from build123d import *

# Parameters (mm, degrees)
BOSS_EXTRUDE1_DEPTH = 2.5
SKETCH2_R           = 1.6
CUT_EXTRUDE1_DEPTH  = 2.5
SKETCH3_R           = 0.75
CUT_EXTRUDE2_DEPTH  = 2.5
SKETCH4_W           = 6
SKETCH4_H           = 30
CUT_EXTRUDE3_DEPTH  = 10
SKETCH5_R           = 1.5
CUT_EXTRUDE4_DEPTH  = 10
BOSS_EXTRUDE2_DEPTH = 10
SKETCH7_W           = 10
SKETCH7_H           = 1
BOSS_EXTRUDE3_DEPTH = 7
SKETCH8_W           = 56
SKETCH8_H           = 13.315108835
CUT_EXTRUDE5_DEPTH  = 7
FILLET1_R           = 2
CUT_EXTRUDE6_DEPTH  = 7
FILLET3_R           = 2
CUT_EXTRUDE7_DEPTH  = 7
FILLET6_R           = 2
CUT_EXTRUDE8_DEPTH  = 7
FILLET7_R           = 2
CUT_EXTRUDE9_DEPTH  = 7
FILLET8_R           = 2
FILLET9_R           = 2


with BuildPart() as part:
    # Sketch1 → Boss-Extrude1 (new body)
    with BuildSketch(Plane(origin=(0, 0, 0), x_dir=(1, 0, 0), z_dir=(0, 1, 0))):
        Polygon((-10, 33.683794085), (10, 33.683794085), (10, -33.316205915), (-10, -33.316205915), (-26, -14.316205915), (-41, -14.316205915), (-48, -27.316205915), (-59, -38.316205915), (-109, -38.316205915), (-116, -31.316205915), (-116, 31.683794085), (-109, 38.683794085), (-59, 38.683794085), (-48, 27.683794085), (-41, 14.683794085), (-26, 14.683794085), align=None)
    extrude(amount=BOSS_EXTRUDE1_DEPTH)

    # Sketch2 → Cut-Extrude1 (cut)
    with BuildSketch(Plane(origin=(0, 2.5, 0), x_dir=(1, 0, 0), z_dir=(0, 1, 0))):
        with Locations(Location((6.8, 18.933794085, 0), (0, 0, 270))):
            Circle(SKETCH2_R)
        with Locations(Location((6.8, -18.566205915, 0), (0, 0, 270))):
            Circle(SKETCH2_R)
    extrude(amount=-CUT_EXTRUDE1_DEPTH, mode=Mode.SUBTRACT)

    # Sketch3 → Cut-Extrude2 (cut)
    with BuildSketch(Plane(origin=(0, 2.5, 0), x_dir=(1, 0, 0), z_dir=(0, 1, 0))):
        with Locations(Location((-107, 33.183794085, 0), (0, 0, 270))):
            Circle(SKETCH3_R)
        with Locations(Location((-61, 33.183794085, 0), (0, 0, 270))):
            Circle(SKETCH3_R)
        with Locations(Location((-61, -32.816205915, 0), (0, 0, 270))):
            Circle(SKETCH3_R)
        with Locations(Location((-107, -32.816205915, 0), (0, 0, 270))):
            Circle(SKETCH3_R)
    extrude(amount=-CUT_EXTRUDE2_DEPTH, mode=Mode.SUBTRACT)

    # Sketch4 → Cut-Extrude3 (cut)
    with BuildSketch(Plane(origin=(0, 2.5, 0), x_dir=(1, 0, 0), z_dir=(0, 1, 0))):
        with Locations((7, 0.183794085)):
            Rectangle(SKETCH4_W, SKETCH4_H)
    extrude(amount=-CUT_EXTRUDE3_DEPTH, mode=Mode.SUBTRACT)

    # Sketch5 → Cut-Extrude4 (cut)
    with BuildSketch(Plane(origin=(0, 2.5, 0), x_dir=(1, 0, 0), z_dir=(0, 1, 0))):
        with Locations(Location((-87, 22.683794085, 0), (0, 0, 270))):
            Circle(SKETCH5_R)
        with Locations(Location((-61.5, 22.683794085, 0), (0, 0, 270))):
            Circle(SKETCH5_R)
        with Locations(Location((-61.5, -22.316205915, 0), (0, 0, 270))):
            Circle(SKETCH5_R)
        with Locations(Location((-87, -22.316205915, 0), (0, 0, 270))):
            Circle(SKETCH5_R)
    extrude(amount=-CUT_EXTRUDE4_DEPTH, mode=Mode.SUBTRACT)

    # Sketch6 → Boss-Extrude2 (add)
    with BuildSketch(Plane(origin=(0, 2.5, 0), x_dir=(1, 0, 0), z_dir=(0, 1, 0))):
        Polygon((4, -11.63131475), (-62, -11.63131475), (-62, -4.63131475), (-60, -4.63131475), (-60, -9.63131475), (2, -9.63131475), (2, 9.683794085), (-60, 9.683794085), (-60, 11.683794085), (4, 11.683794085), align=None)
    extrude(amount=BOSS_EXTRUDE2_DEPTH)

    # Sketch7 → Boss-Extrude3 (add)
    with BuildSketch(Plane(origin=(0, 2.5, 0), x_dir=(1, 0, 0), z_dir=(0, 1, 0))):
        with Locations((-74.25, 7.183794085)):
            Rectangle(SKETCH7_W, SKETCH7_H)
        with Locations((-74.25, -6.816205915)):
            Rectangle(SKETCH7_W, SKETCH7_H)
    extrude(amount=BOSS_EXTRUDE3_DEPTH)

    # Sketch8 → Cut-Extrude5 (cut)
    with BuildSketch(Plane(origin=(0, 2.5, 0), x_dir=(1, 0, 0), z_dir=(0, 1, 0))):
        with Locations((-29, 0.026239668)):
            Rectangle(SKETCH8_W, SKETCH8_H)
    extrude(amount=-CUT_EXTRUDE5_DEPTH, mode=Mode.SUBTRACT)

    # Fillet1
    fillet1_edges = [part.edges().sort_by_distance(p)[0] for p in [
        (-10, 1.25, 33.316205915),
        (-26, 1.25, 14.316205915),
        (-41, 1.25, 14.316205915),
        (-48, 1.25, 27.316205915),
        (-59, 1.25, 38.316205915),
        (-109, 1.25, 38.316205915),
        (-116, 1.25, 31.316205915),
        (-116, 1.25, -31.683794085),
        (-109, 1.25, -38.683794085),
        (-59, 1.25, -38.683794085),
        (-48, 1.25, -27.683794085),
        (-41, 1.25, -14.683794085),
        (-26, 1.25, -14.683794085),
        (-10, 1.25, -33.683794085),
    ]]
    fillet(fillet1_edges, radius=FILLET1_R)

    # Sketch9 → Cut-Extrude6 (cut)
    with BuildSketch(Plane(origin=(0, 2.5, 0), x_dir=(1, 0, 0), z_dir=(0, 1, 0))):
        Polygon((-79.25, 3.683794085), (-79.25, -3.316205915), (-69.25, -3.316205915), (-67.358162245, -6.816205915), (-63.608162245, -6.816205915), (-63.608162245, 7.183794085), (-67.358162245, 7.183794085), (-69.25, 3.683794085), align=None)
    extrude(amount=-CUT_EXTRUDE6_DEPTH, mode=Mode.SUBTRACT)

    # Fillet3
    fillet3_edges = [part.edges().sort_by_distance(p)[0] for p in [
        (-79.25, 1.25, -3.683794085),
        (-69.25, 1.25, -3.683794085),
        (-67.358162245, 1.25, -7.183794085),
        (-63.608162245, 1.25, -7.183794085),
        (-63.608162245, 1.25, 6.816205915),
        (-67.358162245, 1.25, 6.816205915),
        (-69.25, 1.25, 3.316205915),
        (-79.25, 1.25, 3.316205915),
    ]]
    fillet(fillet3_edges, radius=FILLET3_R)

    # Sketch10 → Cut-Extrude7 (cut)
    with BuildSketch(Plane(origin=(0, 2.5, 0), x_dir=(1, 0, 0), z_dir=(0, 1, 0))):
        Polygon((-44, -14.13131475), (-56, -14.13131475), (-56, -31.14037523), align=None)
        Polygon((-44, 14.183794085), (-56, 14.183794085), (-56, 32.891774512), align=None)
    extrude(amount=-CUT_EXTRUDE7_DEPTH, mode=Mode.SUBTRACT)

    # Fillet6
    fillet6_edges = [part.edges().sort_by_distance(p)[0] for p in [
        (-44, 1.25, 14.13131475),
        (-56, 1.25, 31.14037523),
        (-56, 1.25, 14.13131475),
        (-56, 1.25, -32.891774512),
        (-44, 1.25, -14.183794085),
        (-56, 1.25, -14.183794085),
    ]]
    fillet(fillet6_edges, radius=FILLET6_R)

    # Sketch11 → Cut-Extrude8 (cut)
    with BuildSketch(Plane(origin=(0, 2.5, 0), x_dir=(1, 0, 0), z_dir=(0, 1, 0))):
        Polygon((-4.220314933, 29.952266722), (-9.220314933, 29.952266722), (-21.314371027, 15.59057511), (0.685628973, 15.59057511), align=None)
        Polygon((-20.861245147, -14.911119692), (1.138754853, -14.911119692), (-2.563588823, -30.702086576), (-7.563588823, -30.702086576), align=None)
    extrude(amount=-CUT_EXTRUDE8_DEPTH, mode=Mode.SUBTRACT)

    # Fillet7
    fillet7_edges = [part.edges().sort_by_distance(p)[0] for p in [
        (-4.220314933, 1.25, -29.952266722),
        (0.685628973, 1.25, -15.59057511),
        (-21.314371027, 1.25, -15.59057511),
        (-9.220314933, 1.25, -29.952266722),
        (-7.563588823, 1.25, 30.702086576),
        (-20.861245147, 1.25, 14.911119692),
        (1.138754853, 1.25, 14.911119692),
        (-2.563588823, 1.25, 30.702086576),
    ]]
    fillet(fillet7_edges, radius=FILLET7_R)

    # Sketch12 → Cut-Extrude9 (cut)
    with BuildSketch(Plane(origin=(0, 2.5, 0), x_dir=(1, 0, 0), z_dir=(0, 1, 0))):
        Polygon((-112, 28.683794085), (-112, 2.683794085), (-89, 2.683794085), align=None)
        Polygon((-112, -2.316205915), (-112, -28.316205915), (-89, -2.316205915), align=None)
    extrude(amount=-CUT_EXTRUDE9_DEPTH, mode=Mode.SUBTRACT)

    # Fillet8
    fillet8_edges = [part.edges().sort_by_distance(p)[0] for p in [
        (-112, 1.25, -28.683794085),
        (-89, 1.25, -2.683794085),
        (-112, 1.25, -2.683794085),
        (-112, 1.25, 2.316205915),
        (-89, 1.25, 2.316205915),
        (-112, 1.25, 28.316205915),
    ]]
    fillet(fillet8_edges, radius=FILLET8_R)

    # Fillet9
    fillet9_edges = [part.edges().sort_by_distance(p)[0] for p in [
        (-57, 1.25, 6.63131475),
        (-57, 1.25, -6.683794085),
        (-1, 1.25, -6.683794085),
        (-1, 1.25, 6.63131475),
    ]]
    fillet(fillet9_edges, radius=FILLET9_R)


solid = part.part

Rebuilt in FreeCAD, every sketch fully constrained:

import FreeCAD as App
import Part
import Sketcher

V = App.Vector
Q = App.Units.Quantity


def edges_at(feature, points):
    """Names of the edges that pass closest to the given points."""
    edges = feature.Shape.Edges
    near = lambda p: min(range(len(edges)), key=lambda i: edges[i].distToShape(Part.Vertex(*p))[0])
    return sorted({f"Edge{near(p) + 1}" for p in points})


def add_polygon(sketch, points):
    """Adds a closed chain of lines whose ends are joined by coincident constraints."""
    first, n = sketch.GeometryCount, len(points)
    for a, b in zip(points, points[1:] + points[:1]):
        sketch.addGeometry(Part.LineSegment(App.Vector(*a, 0), App.Vector(*b, 0)), False)
    for i in range(n):
        sketch.addConstraint(Sketcher.Constraint("Coincident", first + i, 2, first + (i + 1) % n, 1))

doc = App.newDocument("Part")
body = doc.addObject("PartDesign::Body", "Body")

# Sketch on XZ plane
sketch1 = body.newObject("Sketcher::SketchObject", "Sketch")
sketch1.AttachmentSupport = (doc.getObject("XZ_Plane"), [""])
sketch1.MapMode = "FlatFace"
add_polygon(sketch1, [(10, -34), (-10, -34), (-26, -15), (-41, -15), (-48, -28), (-59, -39), (-109, -39), (-116, -32), (-116, 31), (-109, 38), (-59, 38), (-48, 27), (-41, 14), (-26, 14), (-10, 33), (10, 33)])  # lines 0-15
sketch1.addConstraint(Sketcher.Constraint("Horizontal", 0))
sketch1.addConstraint(Sketcher.Constraint("Horizontal", 2))
sketch1.addConstraint(Sketcher.Constraint("Horizontal", 5))
sketch1.addConstraint(Sketcher.Constraint("Vertical", 7))
sketch1.addConstraint(Sketcher.Constraint("Horizontal", 9))
sketch1.addConstraint(Sketcher.Constraint("Horizontal", 12))
sketch1.addConstraint(Sketcher.Constraint("Horizontal", 14))
sketch1.addConstraint(Sketcher.Constraint("Vertical", 15))
sketch1.addConstraint(Sketcher.Constraint("Perpendicular", 4, 6))
sketch1.addConstraint(Sketcher.Constraint("Perpendicular", 6, 8))
sketch1.addConstraint(Sketcher.Constraint("Perpendicular", 8, 10))
sketch1.addConstraint(Sketcher.Constraint("Vertical", 5, 2, 8, 2))
sketch1.addConstraint(Sketcher.Constraint("Vertical", 4, 2, 9, 2))
sketch1.addConstraint(Sketcher.Constraint("Vertical", 3, 2, 10, 2))
sketch1.addConstraint(Sketcher.Constraint("Vertical", 2, 2, 11, 2))
sketch1.addConstraint(Sketcher.Constraint("Vertical", 1, 2, 12, 2))
sketch1.addConstraint(Sketcher.Constraint("Vertical", 0, 2, 13, 2))
sketch1.addConstraint(Sketcher.Constraint("Equal", 6, 8))
sketch1.addConstraint(Sketcher.Constraint("Equal", 3, 11))
sketch1.addConstraint(Sketcher.Constraint("Equal", 1, 13))
sketch1.addConstraint(Sketcher.Constraint("DistanceX", 0, 2, 0, 1, Q("20 mm")))
sketch1.addConstraint(Sketcher.Constraint("DistanceX", 2, 2, 2, 1, Q("15 mm")))
sketch1.addConstraint(Sketcher.Constraint("DistanceX", 5, 2, 5, 1, Q("50 mm")))
sketch1.addConstraint(Sketcher.Constraint("DistanceY", 7, 1, 7, 2, Q("63 mm")))
sketch1.addConstraint(Sketcher.Constraint("DistanceY", 15, 2, 15, 1, Q("67 mm")))
sketch1.addConstraint(Sketcher.Constraint("DistanceX", 0, 2, -1, 1, Q("10 mm")))
sketch1.addConstraint(Sketcher.Constraint("DistanceX", 1, 2, -1, 1, Q("26 mm")))
sketch1.addConstraint(Sketcher.Constraint("DistanceX", 3, 2, -1, 1, Q("48 mm")))
sketch1.addConstraint(Sketcher.Constraint("DistanceX", 4, 2, -1, 1, Q("59 mm")))
sketch1.addConstraint(Sketcher.Constraint("DistanceX", 6, 2, -1, 1, Q("116 mm")))
sketch1.addConstraint(Sketcher.Constraint("DistanceY", 0, 2, 1, 2, Q("19 mm")))
sketch1.addConstraint(Sketcher.Constraint("DistanceY", 0, 2, -1, 1, Q("33.683794 mm")))
pad1 = body.newObject("PartDesign::Pad", "Pad")
pad1.Profile = sketch1
pad1.Length = 2.5
pad1.Reversed = True

# Sketch on XZ plane
sketch2 = body.newObject("Sketcher::SketchObject", "Sketch001")
sketch2.AttachmentSupport = (doc.getObject("XZ_Plane"), [""])
sketch2.MapMode = "FlatFace"
sketch2.AttachmentOffset = App.Placement(V(0, 0, -2.5), App.Rotation())
sketch2.addGeometry(Part.Circle(V(6.8, -18.9, 0), V(0, 0, 1), 1.6), False)
sketch2.addGeometry(Part.Circle(V(6.8, 18.6, 0), V(0, 0, 1), 1.6), False)
sketch2.addConstraint(Sketcher.Constraint("Equal", 0, 1))
sketch2.addConstraint(Sketcher.Constraint("Vertical", 0, 3, 1, 3))
sketch2.addConstraint(Sketcher.Constraint("Diameter", 0, Q("3.2 mm")))
sketch2.addConstraint(Sketcher.Constraint("DistanceX", -1, 1, 0, 3, Q("6.8 mm")))
sketch2.addConstraint(Sketcher.Constraint("DistanceY", 0, 3, 1, 3, Q("37.5 mm")))
sketch2.addConstraint(Sketcher.Constraint("DistanceY", 0, 3, -1, 1, Q("18.933794 mm")))
pocket1 = body.newObject("PartDesign::Pocket", "Pocket")
pocket1.Profile = sketch2
pocket1.Length = 2.5
pocket1.Reversed = True

# Sketch on XZ plane
sketch3 = body.newObject("Sketcher::SketchObject", "Sketch002")
sketch3.AttachmentSupport = (doc.getObject("XZ_Plane"), [""])
sketch3.MapMode = "FlatFace"
sketch3.AttachmentOffset = App.Placement(V(0, 0, -2.5), App.Rotation())
sketch3.addGeometry(Part.Circle(V(-107, -33.2, 0), V(0, 0, 1), 0.8), False)
sketch3.addGeometry(Part.Circle(V(-61, -33.2, 0), V(0, 0, 1), 0.8), False)
sketch3.addGeometry(Part.Circle(V(-61, 32.8, 0), V(0, 0, 1), 0.8), False)
sketch3.addGeometry(Part.Circle(V(-107, 32.8, 0), V(0, 0, 1), 0.8), False)
sketch3.addConstraint(Sketcher.Constraint("Equal", 0, 1))
sketch3.addConstraint(Sketcher.Constraint("Equal", 1, 2))
sketch3.addConstraint(Sketcher.Constraint("Equal", 2, 3))
sketch3.addConstraint(Sketcher.Constraint("Horizontal", 0, 3, 1, 3))
sketch3.addConstraint(Sketcher.Constraint("Horizontal", 2, 3, 3, 3))
sketch3.addConstraint(Sketcher.Constraint("Vertical", 1, 3, 2, 3))
sketch3.addConstraint(Sketcher.Constraint("Vertical", 0, 3, 3, 3))
sketch3.addConstraint(Sketcher.Constraint("Diameter", 0, Q("1.5 mm")))
sketch3.addConstraint(Sketcher.Constraint("DistanceX", 0, 3, -1, 1, Q("107 mm")))
sketch3.addConstraint(Sketcher.Constraint("DistanceX", 1, 3, -1, 1, Q("61 mm")))
sketch3.addConstraint(Sketcher.Constraint("DistanceY", 1, 3, 2, 3, Q("66 mm")))
sketch3.addConstraint(Sketcher.Constraint("DistanceY", 0, 3, -1, 1, Q("33.183794 mm")))
pocket2 = body.newObject("PartDesign::Pocket", "Pocket001")
pocket2.Profile = sketch3
pocket2.Length = 2.5
pocket2.Reversed = True

# Sketch on XZ plane
sketch4 = body.newObject("Sketcher::SketchObject", "Sketch003")
sketch4.AttachmentSupport = (doc.getObject("XZ_Plane"), [""])
sketch4.MapMode = "FlatFace"
sketch4.AttachmentOffset = App.Placement(V(0, 0, -2.5), App.Rotation())
add_polygon(sketch4, [(4, -15), (4, 15), (10, 15), (10, -15)])  # lines 0-3
sketch4.addConstraint(Sketcher.Constraint("Vertical", 0))
sketch4.addConstraint(Sketcher.Constraint("Horizontal", 1))
sketch4.addConstraint(Sketcher.Constraint("Vertical", 2))
sketch4.addConstraint(Sketcher.Constraint("Horizontal", 3))
sketch4.addConstraint(Sketcher.Constraint("DistanceX", 1, 1, 1, 2, Q("6 mm")))
sketch4.addConstraint(Sketcher.Constraint("DistanceY", 0, 1, 0, 2, Q("30 mm")))
sketch4.addConstraint(Sketcher.Constraint("DistanceX", -1, 1, 0, 2, Q("4 mm")))
sketch4.addConstraint(Sketcher.Constraint("DistanceY", -1, 1, 0, 2, Q("14.816206 mm")))
pocket3 = body.newObject("PartDesign::Pocket", "Pocket002")
pocket3.Profile = sketch4
pocket3.Length = 10
pocket3.Reversed = True

# Sketch on XZ plane
sketch5 = body.newObject("Sketcher::SketchObject", "Sketch004")
sketch5.AttachmentSupport = (doc.getObject("XZ_Plane"), [""])
sketch5.MapMode = "FlatFace"
sketch5.AttachmentOffset = App.Placement(V(0, 0, -2.5), App.Rotation())
sketch5.addGeometry(Part.Circle(V(-87, -22.7, 0), V(0, 0, 1), 1.5), False)
sketch5.addGeometry(Part.Circle(V(-61.5, -22.7, 0), V(0, 0, 1), 1.5), False)
sketch5.addGeometry(Part.Circle(V(-61.5, 22.3, 0), V(0, 0, 1), 1.5), False)
sketch5.addGeometry(Part.Circle(V(-87, 22.3, 0), V(0, 0, 1), 1.5), False)
sketch5.addConstraint(Sketcher.Constraint("Equal", 0, 1))
sketch5.addConstraint(Sketcher.Constraint("Equal", 1, 2))
sketch5.addConstraint(Sketcher.Constraint("Equal", 2, 3))
sketch5.addConstraint(Sketcher.Constraint("Horizontal", 0, 3, 1, 3))
sketch5.addConstraint(Sketcher.Constraint("Horizontal", 2, 3, 3, 3))
sketch5.addConstraint(Sketcher.Constraint("Vertical", 1, 3, 2, 3))
sketch5.addConstraint(Sketcher.Constraint("Vertical", 0, 3, 3, 3))
sketch5.addConstraint(Sketcher.Constraint("Diameter", 0, Q("3 mm")))
sketch5.addConstraint(Sketcher.Constraint("DistanceX", 0, 3, -1, 1, Q("87 mm")))
sketch5.addConstraint(Sketcher.Constraint("DistanceY", 1, 3, 2, 3, Q("45 mm")))
sketch5.addConstraint(Sketcher.Constraint("DistanceX", 1, 3, -1, 1, Q("61.5 mm")))
sketch5.addConstraint(Sketcher.Constraint("DistanceY", 0, 3, -1, 1, Q("22.683794 mm")))
pocket4 = body.newObject("PartDesign::Pocket", "Pocket003")
pocket4.Profile = sketch5
pocket4.Length = 10
pocket4.Reversed = True

# Sketch on XZ plane
sketch6 = body.newObject("Sketcher::SketchObject", "Sketch005")
sketch6.AttachmentSupport = (doc.getObject("XZ_Plane"), [""])
sketch6.MapMode = "FlatFace"
sketch6.AttachmentOffset = App.Placement(V(0, 0, -2.5), App.Rotation())
add_polygon(sketch6, [(-62, 11.6), (4, 11.6), (4, -11.7), (-60, -11.7), (-60, -9.7), (2, -9.7), (2, 9.6), (-60, 9.6), (-60, 4.6), (-62, 4.6)])  # lines 0-9
sketch6.addConstraint(Sketcher.Constraint("Horizontal", 0))
sketch6.addConstraint(Sketcher.Constraint("Vertical", 1))
sketch6.addConstraint(Sketcher.Constraint("Horizontal", 2))
sketch6.addConstraint(Sketcher.Constraint("Vertical", 3))
sketch6.addConstraint(Sketcher.Constraint("Horizontal", 4))
sketch6.addConstraint(Sketcher.Constraint("Vertical", 5))
sketch6.addConstraint(Sketcher.Constraint("Horizontal", 6))
sketch6.addConstraint(Sketcher.Constraint("Vertical", 7))
sketch6.addConstraint(Sketcher.Constraint("Horizontal", 8))
sketch6.addConstraint(Sketcher.Constraint("Vertical", 9))
sketch6.addConstraint(Sketcher.Constraint("Vertical", 3, 2, 6, 2))
sketch6.addConstraint(Sketcher.Constraint("Equal", 8, 3))
sketch6.addConstraint(Sketcher.Constraint("DistanceX", 0, 1, 0, 2, Q("66 mm")))
sketch6.addConstraint(Sketcher.Constraint("DistanceX", 2, 2, 2, 1, Q("64 mm")))
sketch6.addConstraint(Sketcher.Constraint("DistanceX", 4, 1, 4, 2, Q("62 mm")))
sketch6.addConstraint(Sketcher.Constraint("DistanceY", 7, 2, 7, 1, Q("5 mm")))
sketch6.addConstraint(Sketcher.Constraint("DistanceY", 9, 1, 9, 2, Q("7 mm")))
sketch6.addConstraint(Sketcher.Constraint("DistanceX", -1, 1, 0, 2, Q("4 mm")))
sketch6.addConstraint(Sketcher.Constraint("DistanceY", 1, 2, 1, 1, Q("23.315109 mm")))
sketch6.addConstraint(Sketcher.Constraint("DistanceY", -1, 1, 0, 2, Q("11.631315 mm")))
pad2 = body.newObject("PartDesign::Pad", "Pad001")
pad2.Profile = sketch6
pad2.Length = 10
pad2.Reversed = True

# Sketch on XZ plane
sketch7 = body.newObject("Sketcher::SketchObject", "Sketch006")
sketch7.AttachmentSupport = (doc.getObject("XZ_Plane"), [""])
sketch7.MapMode = "FlatFace"
sketch7.AttachmentOffset = App.Placement(V(0, 0, -2.5), App.Rotation())
add_polygon(sketch7, [(-79.2, -7.7), (-79.2, -6.7), (-69.2, -6.7), (-69.2, -7.7)])  # lines 0-3
add_polygon(sketch7, [(-79.2, 6.3), (-79.2, 7.3), (-69.2, 7.3), (-69.2, 6.3)])  # lines 4-7
sketch7.addConstraint(Sketcher.Constraint("Vertical", 0))
sketch7.addConstraint(Sketcher.Constraint("Horizontal", 1))
sketch7.addConstraint(Sketcher.Constraint("Vertical", 2))
sketch7.addConstraint(Sketcher.Constraint("Horizontal", 3))
sketch7.addConstraint(Sketcher.Constraint("Vertical", 4))
sketch7.addConstraint(Sketcher.Constraint("Horizontal", 5))
sketch7.addConstraint(Sketcher.Constraint("Vertical", 6))
sketch7.addConstraint(Sketcher.Constraint("Horizontal", 7))
sketch7.addConstraint(Sketcher.Constraint("Vertical", 3, 2, 4, 2))
sketch7.addConstraint(Sketcher.Constraint("Vertical", 2, 2, 5, 2))
sketch7.addConstraint(Sketcher.Constraint("Equal", 2, 4))
sketch7.addConstraint(Sketcher.Constraint("DistanceX", 1, 1, 1, 2, Q("10 mm")))
sketch7.addConstraint(Sketcher.Constraint("DistanceY", 0, 1, 0, 2, Q("1 mm")))
sketch7.addConstraint(Sketcher.Constraint("DistanceY", 0, 2, 4, 2, Q("14 mm")))
sketch7.addConstraint(Sketcher.Constraint("DistanceX", 0, 2, -1, 1, Q("79.25 mm")))
sketch7.addConstraint(Sketcher.Constraint("DistanceY", 0, 2, -1, 1, Q("6.683794 mm")))
pad3 = body.newObject("PartDesign::Pad", "Pad002")
pad3.Profile = sketch7
pad3.Length = 7
pad3.Reversed = True

# Sketch on XZ plane
sketch8 = body.newObject("Sketcher::SketchObject", "Sketch007")
sketch8.AttachmentSupport = (doc.getObject("XZ_Plane"), [""])
sketch8.MapMode = "FlatFace"
sketch8.AttachmentOffset = App.Placement(V(0, 0, -2.5), App.Rotation())
add_polygon(sketch8, [(-57, -7), (-57, 7), (-1, 7), (-1, -7)])  # lines 0-3
sketch8.addConstraint(Sketcher.Constraint("Vertical", 0))
sketch8.addConstraint(Sketcher.Constraint("Horizontal", 1))
sketch8.addConstraint(Sketcher.Constraint("Vertical", 2))
sketch8.addConstraint(Sketcher.Constraint("Horizontal", 3))
sketch8.addConstraint(Sketcher.Constraint("DistanceX", 1, 1, 1, 2, Q("56 mm")))
sketch8.addConstraint(Sketcher.Constraint("DistanceX", 0, 2, -1, 1, Q("57 mm")))
sketch8.addConstraint(Sketcher.Constraint("DistanceY", 0, 1, 0, 2, Q("13.315109 mm")))
sketch8.addConstraint(Sketcher.Constraint("DistanceY", -1, 1, 0, 2, Q("6.631315 mm")))
pocket5 = body.newObject("PartDesign::Pocket", "Pocket004")
pocket5.Profile = sketch8
pocket5.Length = 7
pocket5.Reversed = True
doc.recompute()

fillet = body.newObject("PartDesign::Fillet", "Fillet")
fillet.Base = (pocket5, edges_at(pocket5, [
    (-10, 1.25, 33.316),
    (-26, 1.25, 14.316),
    (-41, 1.25, 14.316),
    (-48, 1.25, 27.316),
    (-59, 1.25, 38.316),
    (-109, 1.25, 38.316),
    (-116, 1.25, 31.316),
    (-116, 1.25, -31.684),
    (-109, 1.25, -38.684),
    (-59, 1.25, -38.684),
    (-48, 1.25, -27.684),
    (-41, 1.25, -14.684),
    (-26, 1.25, -14.684),
    (-10, 1.25, -33.684),
]))
fillet.Radius = 2

# Sketch on XZ plane
sketch9 = body.newObject("Sketcher::SketchObject", "Sketch008")
sketch9.AttachmentSupport = (doc.getObject("XZ_Plane"), [""])
sketch9.MapMode = "FlatFace"
sketch9.AttachmentOffset = App.Placement(V(0, 0, -2.5), App.Rotation())
add_polygon(sketch9, [(-79.2, -3.7), (-79.2, 3.3), (-69.2, 3.3), (-67.4, 6.8), (-63.6, 6.8), (-63.6, -7.2), (-67.4, -7.2), (-69.2, -3.7)])  # lines 0-7
sketch9.addConstraint(Sketcher.Constraint("Vertical", 0))
sketch9.addConstraint(Sketcher.Constraint("Horizontal", 1))
sketch9.addConstraint(Sketcher.Constraint("Horizontal", 3))
sketch9.addConstraint(Sketcher.Constraint("Vertical", 4))
sketch9.addConstraint(Sketcher.Constraint("Horizontal", 5))
sketch9.addConstraint(Sketcher.Constraint("Horizontal", 7))
sketch9.addConstraint(Sketcher.Constraint("Vertical", 2, 2, 5, 2))
sketch9.addConstraint(Sketcher.Constraint("Vertical", 1, 2, 6, 2))
sketch9.addConstraint(Sketcher.Constraint("Equal", 2, 6))
sketch9.addConstraint(Sketcher.Constraint("DistanceX", 1, 1, 1, 2, Q("10 mm")))
sketch9.addConstraint(Sketcher.Constraint("DistanceY", 0, 1, 0, 2, Q("7 mm")))
sketch9.addConstraint(Sketcher.Constraint("DistanceY", 4, 2, 4, 1, Q("14 mm")))
sketch9.addConstraint(Sketcher.Constraint("DistanceX", 3, 1, 3, 2, Q("3.75 mm")))
sketch9.addConstraint(Sketcher.Constraint("DistanceX", 0, 2, -1, 1, Q("79.25 mm")))
sketch9.addConstraint(Sketcher.Constraint("Distance", 2, Q("3.978574 mm")))
sketch9.addConstraint(Sketcher.Constraint("DistanceY", -1, 1, 0, 2, Q("3.316206 mm")))
pocket6 = body.newObject("PartDesign::Pocket", "Pocket005")
pocket6.Profile = sketch9
pocket6.Length = 7
pocket6.Reversed = True
doc.recompute()

fillet2 = body.newObject("PartDesign::Fillet", "Fillet001")
fillet2.Base = (pocket6, edges_at(pocket6, [
    (-79.25, 1.25, -3.684),
    (-69.25, 1.25, -3.684),
    (-67.358, 1.25, -7.184),
    (-63.608, 1.25, -7.184),
    (-63.608, 1.25, 6.816),
    (-67.358, 1.25, 6.816),
    (-69.25, 1.25, 3.316),
    (-79.25, 1.25, 3.316),
]))
fillet2.Radius = 2

# Sketch on XZ plane
sketch10 = body.newObject("Sketcher::SketchObject", "Sketch009")
sketch10.AttachmentSupport = (doc.getObject("XZ_Plane"), [""])
sketch10.MapMode = "FlatFace"
sketch10.AttachmentOffset = App.Placement(V(0, 0, -2.5), App.Rotation())
add_polygon(sketch10, [(-44, 14), (-56, 14), (-56, 31)])  # lines 0-2
add_polygon(sketch10, [(-56, -14), (-44, -14), (-56, -33)])  # lines 3-5
sketch10.addConstraint(Sketcher.Constraint("Horizontal", 0))
sketch10.addConstraint(Sketcher.Constraint("Vertical", 1))
sketch10.addConstraint(Sketcher.Constraint("Horizontal", 3))
sketch10.addConstraint(Sketcher.Constraint("Vertical", 5))
sketch10.addConstraint(Sketcher.Constraint("Vertical", 2, 2, 3, 2))
sketch10.addConstraint(Sketcher.Constraint("Vertical", 1, 2, 4, 2))
sketch10.addConstraint(Sketcher.Constraint("DistanceX", 0, 2, 0, 1, Q("12 mm")))
sketch10.addConstraint(Sketcher.Constraint("DistanceX", 0, 2, -1, 1, Q("56 mm")))
sketch10.addConstraint(Sketcher.Constraint("DistanceY", 1, 1, 1, 2, Q("17.00906 mm")))
sketch10.addConstraint(Sketcher.Constraint("DistanceY", 5, 1, 5, 2, Q("18.70798 mm")))
sketch10.addConstraint(Sketcher.Constraint("DistanceY", 3, 2, 2, 2, Q("28.315109 mm")))
sketch10.addConstraint(Sketcher.Constraint("DistanceY", -1, 1, 0, 2, Q("14.131315 mm")))
pocket7 = body.newObject("PartDesign::Pocket", "Pocket006")
pocket7.Profile = sketch10
pocket7.Length = 7
pocket7.Reversed = True
doc.recompute()

fillet3 = body.newObject("PartDesign::Fillet", "Fillet002")
fillet3.Base = (pocket7, edges_at(pocket7, [
    (-44, 1.25, 14.131),
    (-56, 1.25, 31.14),
    (-56, 1.25, 14.131),
    (-56, 1.25, -32.892),
    (-44, 1.25, -14.184),
    (-56, 1.25, -14.184),
]))
fillet3.Radius = 2

# Sketch on XZ plane
sketch11 = body.newObject("Sketcher::SketchObject", "Sketch010")
sketch11.AttachmentSupport = (doc.getObject("XZ_Plane"), [""])
sketch11.MapMode = "FlatFace"
sketch11.AttachmentOffset = App.Placement(V(0, 0, -2.5), App.Rotation())
add_polygon(sketch11, [(-4.2, -30), (-9.2, -30), (-21.3, -15.6), (0.7, -15.6)])  # lines 0-3
add_polygon(sketch11, [(1.1, 14.9), (-20.9, 14.9), (-7.6, 30.7), (-2.6, 30.7)])  # lines 4-7
sketch11.addConstraint(Sketcher.Constraint("Horizontal", 0))
sketch11.addConstraint(Sketcher.Constraint("Horizontal", 2))
sketch11.addConstraint(Sketcher.Constraint("Horizontal", 4))
sketch11.addConstraint(Sketcher.Constraint("Horizontal", 6))
sketch11.addConstraint(Sketcher.Constraint("Equal", 2, 4))
sketch11.addConstraint(Sketcher.Constraint("Equal", 0, 6))
sketch11.addConstraint(Sketcher.Constraint("DistanceX", 0, 2, 0, 1, Q("5 mm")))
sketch11.addConstraint(Sketcher.Constraint("DistanceX", 2, 1, 2, 2, Q("22 mm")))
sketch11.addConstraint(Sketcher.Constraint("Distance", 3, Q("15.176511 mm")))
sketch11.addConstraint(Sketcher.Constraint("DistanceX", 1, 2, -1, 1, Q("21.314371 mm")))
sketch11.addConstraint(Sketcher.Constraint("DistanceY", -1, 1, 4, 2, Q("14.91112 mm")))
sketch11.addConstraint(Sketcher.Constraint("DistanceX", 5, 2, -1, 1, Q("7.563589 mm")))
sketch11.addConstraint(Sketcher.Constraint("DistanceY", 0, 2, 1, 2, Q("14.361692 mm")))
sketch11.addConstraint(Sketcher.Constraint("DistanceX", 4, 2, 0, 2, Q("11.64093 mm")))
sketch11.addConstraint(Sketcher.Constraint("DistanceY", 2, 2, 5, 2, Q("46.292662 mm")))
sketch11.addConstraint(Sketcher.Constraint("Distance", 5, Q("20.644183 mm")))
pocket8 = body.newObject("PartDesign::Pocket", "Pocket007")
pocket8.Profile = sketch11
pocket8.Length = 7
pocket8.Reversed = True
doc.recompute()

fillet4 = body.newObject("PartDesign::Fillet", "Fillet003")
fillet4.Base = (pocket8, edges_at(pocket8, [
    (-4.22, 1.25, -29.952),
    (0.686, 1.25, -15.591),
    (-21.314, 1.25, -15.591),
    (-9.22, 1.25, -29.952),
    (-7.564, 1.25, 30.702),
    (-20.861, 1.25, 14.911),
    (1.139, 1.25, 14.911),
    (-2.564, 1.25, 30.702),
]))
fillet4.Radius = 2

# Sketch on XZ plane
sketch12 = body.newObject("Sketcher::SketchObject", "Sketch011")
sketch12.AttachmentSupport = (doc.getObject("XZ_Plane"), [""])
sketch12.MapMode = "FlatFace"
sketch12.AttachmentOffset = App.Placement(V(0, 0, -2.5), App.Rotation())
add_polygon(sketch12, [(-112, -29), (-112, -3), (-89, -3)])  # lines 0-2
add_polygon(sketch12, [(-112, 2), (-112, 28), (-89, 2)])  # lines 3-5
sketch12.addConstraint(Sketcher.Constraint("Vertical", 0))
sketch12.addConstraint(Sketcher.Constraint("Horizontal", 1))
sketch12.addConstraint(Sketcher.Constraint("Vertical", 3))
sketch12.addConstraint(Sketcher.Constraint("Horizontal", 5))
sketch12.addConstraint(Sketcher.Constraint("Vertical", 2, 2, 3, 2))
sketch12.addConstraint(Sketcher.Constraint("Vertical", 1, 2, 4, 2))
sketch12.addConstraint(Sketcher.Constraint("Equal", 0, 3))
sketch12.addConstraint(Sketcher.Constraint("DistanceX", 1, 1, 1, 2, Q("23 mm")))
sketch12.addConstraint(Sketcher.Constraint("DistanceY", 0, 1, 0, 2, Q("26 mm")))
sketch12.addConstraint(Sketcher.Constraint("DistanceX", 0, 2, -1, 1, Q("112 mm")))
sketch12.addConstraint(Sketcher.Constraint("DistanceY", 0, 2, 3, 2, Q("31 mm")))
sketch12.addConstraint(Sketcher.Constraint("DistanceY", 0, 2, -1, 1, Q("2.683794 mm")))
pocket9 = body.newObject("PartDesign::Pocket", "Pocket008")
pocket9.Profile = sketch12
pocket9.Length = 7
pocket9.Reversed = True
doc.recompute()

fillet5 = body.newObject("PartDesign::Fillet", "Fillet004")
fillet5.Base = (pocket9, edges_at(pocket9, [
    (-112, 1.25, -28.684),
    (-89, 1.25, -2.684),
    (-112, 1.25, -2.684),
    (-112, 1.25, 2.316),
    (-89, 1.25, 2.316),
    (-112, 1.25, 28.316),
]))
fillet5.Radius = 2
doc.recompute()

fillet6 = body.newObject("PartDesign::Fillet", "Fillet005")
fillet6.Base = (fillet5, edges_at(fillet5, [
    (-57, 1.25, 6.631),
    (-57, 1.25, -6.684),
    (-1, 1.25, -6.684),
    (-1, 1.25, 6.631),
]))
fillet6.Radius = 2

doc.recompute()
